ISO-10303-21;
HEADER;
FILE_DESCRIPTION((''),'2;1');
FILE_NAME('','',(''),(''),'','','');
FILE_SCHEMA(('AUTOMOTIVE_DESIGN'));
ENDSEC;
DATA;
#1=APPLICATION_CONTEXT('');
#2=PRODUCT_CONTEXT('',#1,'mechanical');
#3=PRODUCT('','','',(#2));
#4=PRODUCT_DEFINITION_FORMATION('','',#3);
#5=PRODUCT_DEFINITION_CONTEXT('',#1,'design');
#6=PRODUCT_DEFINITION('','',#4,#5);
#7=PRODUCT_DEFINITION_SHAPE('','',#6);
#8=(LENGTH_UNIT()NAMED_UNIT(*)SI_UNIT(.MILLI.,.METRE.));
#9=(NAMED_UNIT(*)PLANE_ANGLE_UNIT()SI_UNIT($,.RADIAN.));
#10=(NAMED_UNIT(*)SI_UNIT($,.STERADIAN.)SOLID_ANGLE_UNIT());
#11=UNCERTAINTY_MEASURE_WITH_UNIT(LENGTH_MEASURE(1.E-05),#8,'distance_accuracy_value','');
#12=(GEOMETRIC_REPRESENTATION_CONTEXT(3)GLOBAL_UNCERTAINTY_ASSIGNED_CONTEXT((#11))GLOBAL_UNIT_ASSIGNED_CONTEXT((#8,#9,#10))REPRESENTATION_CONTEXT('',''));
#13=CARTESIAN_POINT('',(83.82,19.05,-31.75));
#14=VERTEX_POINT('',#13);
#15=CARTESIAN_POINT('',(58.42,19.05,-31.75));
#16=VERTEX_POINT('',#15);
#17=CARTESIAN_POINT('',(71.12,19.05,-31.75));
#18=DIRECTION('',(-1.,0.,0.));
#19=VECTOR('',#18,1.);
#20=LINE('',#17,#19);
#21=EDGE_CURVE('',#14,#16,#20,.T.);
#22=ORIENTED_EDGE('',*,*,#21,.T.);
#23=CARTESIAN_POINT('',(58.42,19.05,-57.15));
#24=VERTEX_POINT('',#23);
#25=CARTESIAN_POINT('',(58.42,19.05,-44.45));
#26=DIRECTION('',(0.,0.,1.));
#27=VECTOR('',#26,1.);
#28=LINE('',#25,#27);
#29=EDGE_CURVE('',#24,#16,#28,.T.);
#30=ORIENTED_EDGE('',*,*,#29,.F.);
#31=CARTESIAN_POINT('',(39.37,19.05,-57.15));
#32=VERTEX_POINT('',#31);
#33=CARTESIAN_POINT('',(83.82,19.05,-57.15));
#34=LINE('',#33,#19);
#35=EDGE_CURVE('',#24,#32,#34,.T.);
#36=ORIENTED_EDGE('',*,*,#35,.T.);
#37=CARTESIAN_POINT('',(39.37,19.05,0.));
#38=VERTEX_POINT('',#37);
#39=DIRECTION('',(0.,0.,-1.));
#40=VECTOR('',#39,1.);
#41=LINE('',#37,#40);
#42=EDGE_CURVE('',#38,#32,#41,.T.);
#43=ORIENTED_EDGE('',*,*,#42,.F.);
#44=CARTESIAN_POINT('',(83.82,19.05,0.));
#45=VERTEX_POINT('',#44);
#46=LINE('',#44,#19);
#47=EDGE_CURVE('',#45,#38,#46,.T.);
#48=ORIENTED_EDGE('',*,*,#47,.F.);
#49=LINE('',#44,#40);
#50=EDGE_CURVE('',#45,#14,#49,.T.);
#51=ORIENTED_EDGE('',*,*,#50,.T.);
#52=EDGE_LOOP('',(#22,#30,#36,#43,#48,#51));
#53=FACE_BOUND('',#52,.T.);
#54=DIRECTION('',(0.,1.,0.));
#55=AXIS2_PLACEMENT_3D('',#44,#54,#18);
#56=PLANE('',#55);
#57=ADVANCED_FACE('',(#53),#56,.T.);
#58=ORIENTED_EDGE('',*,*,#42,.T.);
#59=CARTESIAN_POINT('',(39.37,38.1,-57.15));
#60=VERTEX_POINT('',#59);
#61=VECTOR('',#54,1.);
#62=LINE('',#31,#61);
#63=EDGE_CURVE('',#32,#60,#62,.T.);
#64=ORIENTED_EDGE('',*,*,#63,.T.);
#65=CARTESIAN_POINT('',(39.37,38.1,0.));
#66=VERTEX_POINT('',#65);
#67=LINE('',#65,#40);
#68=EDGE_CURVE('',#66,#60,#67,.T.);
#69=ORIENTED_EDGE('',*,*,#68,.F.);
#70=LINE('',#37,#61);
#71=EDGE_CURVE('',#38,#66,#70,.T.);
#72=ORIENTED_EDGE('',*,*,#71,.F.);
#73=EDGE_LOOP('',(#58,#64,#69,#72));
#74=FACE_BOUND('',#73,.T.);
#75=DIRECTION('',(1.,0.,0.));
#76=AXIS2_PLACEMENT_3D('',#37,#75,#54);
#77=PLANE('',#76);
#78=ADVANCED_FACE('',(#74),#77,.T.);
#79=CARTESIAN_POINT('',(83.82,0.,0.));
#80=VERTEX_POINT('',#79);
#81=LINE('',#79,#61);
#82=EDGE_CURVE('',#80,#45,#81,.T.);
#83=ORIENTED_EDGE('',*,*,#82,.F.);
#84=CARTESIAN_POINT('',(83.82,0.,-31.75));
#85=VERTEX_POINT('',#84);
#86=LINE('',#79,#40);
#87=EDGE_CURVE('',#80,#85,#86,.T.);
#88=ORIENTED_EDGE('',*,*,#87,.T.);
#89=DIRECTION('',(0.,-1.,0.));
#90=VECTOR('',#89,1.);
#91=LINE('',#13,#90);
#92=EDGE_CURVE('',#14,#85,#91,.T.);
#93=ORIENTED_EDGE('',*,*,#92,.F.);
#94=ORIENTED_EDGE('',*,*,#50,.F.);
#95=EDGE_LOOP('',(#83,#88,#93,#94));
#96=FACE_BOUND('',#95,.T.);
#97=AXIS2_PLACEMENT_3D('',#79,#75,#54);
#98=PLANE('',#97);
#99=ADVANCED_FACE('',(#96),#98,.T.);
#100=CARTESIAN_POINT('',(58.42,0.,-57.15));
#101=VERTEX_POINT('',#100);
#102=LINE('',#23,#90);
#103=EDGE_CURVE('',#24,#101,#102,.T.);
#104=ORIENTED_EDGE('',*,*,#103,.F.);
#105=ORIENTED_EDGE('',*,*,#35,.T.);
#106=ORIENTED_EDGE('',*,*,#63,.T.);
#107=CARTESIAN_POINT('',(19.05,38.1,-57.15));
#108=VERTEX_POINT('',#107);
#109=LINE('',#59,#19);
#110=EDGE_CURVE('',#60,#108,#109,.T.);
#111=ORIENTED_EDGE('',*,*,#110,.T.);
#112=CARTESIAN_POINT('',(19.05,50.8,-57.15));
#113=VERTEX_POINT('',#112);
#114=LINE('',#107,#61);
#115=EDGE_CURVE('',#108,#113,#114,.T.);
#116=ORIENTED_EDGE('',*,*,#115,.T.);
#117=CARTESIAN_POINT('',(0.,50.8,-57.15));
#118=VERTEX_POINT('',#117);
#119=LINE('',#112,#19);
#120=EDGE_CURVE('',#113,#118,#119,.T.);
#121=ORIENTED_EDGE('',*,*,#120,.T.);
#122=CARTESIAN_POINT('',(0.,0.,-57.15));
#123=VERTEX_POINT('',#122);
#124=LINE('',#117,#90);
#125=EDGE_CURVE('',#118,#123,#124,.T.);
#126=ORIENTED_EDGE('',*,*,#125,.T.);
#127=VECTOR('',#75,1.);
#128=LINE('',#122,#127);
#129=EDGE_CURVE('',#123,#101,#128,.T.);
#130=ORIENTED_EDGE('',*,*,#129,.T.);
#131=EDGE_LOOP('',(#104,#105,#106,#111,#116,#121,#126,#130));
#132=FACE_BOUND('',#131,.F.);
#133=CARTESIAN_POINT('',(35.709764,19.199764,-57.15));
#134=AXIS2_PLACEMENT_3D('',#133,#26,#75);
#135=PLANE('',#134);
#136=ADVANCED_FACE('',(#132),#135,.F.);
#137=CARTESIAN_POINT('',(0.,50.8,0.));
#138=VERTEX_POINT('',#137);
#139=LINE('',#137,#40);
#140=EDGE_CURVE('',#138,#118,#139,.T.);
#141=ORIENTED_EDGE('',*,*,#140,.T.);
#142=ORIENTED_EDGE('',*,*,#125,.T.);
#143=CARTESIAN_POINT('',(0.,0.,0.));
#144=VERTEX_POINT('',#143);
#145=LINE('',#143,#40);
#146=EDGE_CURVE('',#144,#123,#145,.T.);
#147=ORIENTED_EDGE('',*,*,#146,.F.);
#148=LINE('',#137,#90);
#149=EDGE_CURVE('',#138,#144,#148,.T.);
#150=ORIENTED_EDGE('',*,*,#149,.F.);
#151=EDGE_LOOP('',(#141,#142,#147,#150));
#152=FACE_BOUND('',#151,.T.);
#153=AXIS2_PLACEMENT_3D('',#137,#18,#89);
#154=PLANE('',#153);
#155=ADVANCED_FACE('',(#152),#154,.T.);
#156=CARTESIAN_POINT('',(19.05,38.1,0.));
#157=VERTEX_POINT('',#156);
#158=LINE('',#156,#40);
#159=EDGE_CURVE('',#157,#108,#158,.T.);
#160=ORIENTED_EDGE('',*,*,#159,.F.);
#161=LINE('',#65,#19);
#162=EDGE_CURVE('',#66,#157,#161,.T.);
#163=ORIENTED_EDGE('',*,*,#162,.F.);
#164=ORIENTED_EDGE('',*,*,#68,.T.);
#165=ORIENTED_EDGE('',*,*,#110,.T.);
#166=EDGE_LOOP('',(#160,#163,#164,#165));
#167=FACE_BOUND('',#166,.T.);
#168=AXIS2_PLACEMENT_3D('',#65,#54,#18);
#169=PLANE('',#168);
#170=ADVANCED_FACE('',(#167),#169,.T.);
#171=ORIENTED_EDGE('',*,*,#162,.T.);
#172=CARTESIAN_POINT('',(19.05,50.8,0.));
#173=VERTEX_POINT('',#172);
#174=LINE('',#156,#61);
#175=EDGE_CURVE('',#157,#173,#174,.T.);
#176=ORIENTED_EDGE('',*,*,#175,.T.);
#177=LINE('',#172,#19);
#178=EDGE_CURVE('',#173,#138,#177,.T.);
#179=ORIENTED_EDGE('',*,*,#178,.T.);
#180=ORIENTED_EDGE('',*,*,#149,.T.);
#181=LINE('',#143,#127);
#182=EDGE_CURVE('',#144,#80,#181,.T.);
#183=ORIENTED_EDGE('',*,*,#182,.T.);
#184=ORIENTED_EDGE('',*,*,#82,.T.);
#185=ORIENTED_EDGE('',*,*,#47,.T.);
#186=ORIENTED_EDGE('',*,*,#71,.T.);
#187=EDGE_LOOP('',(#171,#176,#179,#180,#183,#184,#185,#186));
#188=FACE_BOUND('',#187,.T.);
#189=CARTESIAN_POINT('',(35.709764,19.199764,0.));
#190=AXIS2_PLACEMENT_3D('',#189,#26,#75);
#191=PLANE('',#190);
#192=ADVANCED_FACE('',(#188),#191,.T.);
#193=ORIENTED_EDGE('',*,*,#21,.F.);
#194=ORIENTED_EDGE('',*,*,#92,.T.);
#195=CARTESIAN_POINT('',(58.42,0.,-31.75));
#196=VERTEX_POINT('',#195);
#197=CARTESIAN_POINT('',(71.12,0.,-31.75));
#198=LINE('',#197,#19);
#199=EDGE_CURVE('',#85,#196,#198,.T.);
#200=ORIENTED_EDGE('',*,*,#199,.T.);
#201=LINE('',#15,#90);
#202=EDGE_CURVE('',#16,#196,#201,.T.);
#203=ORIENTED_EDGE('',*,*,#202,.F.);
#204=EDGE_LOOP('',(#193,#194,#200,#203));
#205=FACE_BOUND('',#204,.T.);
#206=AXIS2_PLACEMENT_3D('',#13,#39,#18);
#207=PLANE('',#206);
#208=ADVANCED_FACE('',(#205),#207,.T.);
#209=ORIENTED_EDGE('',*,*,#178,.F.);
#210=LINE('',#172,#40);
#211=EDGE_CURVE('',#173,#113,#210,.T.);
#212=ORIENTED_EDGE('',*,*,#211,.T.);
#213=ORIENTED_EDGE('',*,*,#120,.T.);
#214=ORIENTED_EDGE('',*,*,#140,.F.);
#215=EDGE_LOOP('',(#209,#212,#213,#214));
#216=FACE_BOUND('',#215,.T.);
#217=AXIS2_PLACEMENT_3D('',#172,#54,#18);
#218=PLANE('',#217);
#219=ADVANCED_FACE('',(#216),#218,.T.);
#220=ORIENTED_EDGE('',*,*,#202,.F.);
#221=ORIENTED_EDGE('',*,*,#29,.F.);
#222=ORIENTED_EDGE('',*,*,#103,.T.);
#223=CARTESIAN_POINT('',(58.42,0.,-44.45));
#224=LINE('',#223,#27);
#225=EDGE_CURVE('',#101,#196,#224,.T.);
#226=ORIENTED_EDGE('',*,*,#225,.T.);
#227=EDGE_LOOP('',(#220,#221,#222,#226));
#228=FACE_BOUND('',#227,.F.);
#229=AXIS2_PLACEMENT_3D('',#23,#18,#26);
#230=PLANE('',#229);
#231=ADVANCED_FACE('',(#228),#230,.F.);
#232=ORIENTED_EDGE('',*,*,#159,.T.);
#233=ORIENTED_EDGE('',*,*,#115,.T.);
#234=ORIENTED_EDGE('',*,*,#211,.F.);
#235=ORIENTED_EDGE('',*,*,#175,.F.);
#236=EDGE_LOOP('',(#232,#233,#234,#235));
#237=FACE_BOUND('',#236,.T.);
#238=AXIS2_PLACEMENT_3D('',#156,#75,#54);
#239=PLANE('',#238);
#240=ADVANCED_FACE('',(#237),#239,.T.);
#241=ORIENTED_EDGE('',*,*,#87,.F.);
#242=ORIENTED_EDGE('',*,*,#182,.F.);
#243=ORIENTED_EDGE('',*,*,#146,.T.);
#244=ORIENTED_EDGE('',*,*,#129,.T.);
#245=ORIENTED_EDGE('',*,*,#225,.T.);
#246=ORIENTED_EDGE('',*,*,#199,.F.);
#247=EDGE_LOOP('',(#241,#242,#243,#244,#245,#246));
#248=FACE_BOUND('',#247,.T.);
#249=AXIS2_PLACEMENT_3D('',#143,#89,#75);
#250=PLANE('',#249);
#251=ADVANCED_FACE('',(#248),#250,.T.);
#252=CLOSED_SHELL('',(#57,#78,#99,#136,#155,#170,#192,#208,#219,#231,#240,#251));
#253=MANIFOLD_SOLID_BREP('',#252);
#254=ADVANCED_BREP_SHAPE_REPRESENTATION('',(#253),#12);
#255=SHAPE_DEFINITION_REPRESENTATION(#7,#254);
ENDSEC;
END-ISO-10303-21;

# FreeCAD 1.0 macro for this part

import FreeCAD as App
import Part
import Sketcher
from FreeCAD import Vector
Q = App.Units.Quantity


def add_polygon(sketch, points):
    """Adds a closed chain of lines whose ends are joined by coincident constraints."""
    first, n = sketch.GeometryCount, len(points)
    for a, b in zip(points, points[1:] + points[:1]):
        sketch.addGeometry(Part.LineSegment(App.Vector(*a, 0), App.Vector(*b, 0)), False)
    for i in range(n):
        sketch.addConstraint(Sketcher.Constraint("Coincident", first + i, 2, first + (i + 1) % n, 1))

doc = App.newDocument("Part")
body = doc.addObject("PartDesign::Body", "Body")

sketch1 = doc.addObject("Sketcher::SketchObject", "Sketch")
body.addObject(sketch1)
sketch1.AttachmentSupport = (doc.XY_Plane, [""])
sketch1.MapMode = "FlatFace"
add_polygon(sketch1, [(0, 50.8), (0, 0), (83.82, 0), (83.82, 19.05), (39.37, 19.05), (39.37, 38.1), (19.05, 38.1), (19.05, 50.8)])
sketch1.addConstraint([
    Sketcher.Constraint("Vertical", 0),
    Sketcher.Constraint("Horizontal", 1),
    Sketcher.Constraint("Vertical", 2),
    Sketcher.Constraint("Horizontal", 3),
    Sketcher.Constraint("Vertical", 4),
    Sketcher.Constraint("Horizontal", 5),
    Sketcher.Constraint("Vertical", 6),
    Sketcher.Constraint("Horizontal", 7),
    Sketcher.Constraint("Coincident", 0, 2, -1, 1),
    Sketcher.Constraint("Equal", 7, 2),
    Sketcher.Constraint("Equal", 2, 4),
    Sketcher.Constraint("DistanceY", 0, 2, 0, 1, Q("2 in")),
    Sketcher.Constraint("DistanceX", 1, 1, 1, 2, Q("3.3 in")),
    Sketcher.Constraint("DistanceX", 5, 2, 5, 1, Q("0.8 in")),
    Sketcher.Constraint("DistanceY", 6, 1, 6, 2, Q("0.5 in")),
])
pad1 = doc.addObject("PartDesign::Pad", "Pad")
body.addObject(pad1)
pad1.Profile = sketch1
pad1.Length = Q("2.25 in")
pad1.Reversed = True

sketch2 = doc.addObject("Sketcher::SketchObject", "Sketch001")
body.addObject(sketch2)
sketch2.AttachmentSupport = (doc.XZ_Plane, [""])
sketch2.MapMode = "FlatFace"
sketch2.AttachmentOffset = App.Placement(Vector(0, 0, -0.75 * 25.4), App.Rotation())
add_polygon(sketch2, [(83.82, -31.75), (83.82, -57.15), (58.42, -57.15), (58.42, -31.75)])
sketch2.addConstraint([
    Sketcher.Constraint("Vertical", 0),
    Sketcher.Constraint("Horizontal", 1),
    Sketcher.Constraint("Vertical", 2),
    Sketcher.Constraint("Horizontal", 3),
    Sketcher.Constraint("Equal", 3, 0),
    Sketcher.Constraint("DistanceX", 1, 2, 1, 1, Q("1 in")),
    Sketcher.Constraint("DistanceX", -1, 1, 0, 2, Q("3.3 in")),
    Sketcher.Constraint("DistanceY", 0, 2, -1, 1, Q("2.25 in")),
])
pocket1 = doc.addObject("PartDesign::Pocket", "Pocket")
body.addObject(pocket1)
pocket1.Profile = sketch2
pocket1.Type = "ThroughAll"
pocket1.Reversed = True

doc.recompute()
